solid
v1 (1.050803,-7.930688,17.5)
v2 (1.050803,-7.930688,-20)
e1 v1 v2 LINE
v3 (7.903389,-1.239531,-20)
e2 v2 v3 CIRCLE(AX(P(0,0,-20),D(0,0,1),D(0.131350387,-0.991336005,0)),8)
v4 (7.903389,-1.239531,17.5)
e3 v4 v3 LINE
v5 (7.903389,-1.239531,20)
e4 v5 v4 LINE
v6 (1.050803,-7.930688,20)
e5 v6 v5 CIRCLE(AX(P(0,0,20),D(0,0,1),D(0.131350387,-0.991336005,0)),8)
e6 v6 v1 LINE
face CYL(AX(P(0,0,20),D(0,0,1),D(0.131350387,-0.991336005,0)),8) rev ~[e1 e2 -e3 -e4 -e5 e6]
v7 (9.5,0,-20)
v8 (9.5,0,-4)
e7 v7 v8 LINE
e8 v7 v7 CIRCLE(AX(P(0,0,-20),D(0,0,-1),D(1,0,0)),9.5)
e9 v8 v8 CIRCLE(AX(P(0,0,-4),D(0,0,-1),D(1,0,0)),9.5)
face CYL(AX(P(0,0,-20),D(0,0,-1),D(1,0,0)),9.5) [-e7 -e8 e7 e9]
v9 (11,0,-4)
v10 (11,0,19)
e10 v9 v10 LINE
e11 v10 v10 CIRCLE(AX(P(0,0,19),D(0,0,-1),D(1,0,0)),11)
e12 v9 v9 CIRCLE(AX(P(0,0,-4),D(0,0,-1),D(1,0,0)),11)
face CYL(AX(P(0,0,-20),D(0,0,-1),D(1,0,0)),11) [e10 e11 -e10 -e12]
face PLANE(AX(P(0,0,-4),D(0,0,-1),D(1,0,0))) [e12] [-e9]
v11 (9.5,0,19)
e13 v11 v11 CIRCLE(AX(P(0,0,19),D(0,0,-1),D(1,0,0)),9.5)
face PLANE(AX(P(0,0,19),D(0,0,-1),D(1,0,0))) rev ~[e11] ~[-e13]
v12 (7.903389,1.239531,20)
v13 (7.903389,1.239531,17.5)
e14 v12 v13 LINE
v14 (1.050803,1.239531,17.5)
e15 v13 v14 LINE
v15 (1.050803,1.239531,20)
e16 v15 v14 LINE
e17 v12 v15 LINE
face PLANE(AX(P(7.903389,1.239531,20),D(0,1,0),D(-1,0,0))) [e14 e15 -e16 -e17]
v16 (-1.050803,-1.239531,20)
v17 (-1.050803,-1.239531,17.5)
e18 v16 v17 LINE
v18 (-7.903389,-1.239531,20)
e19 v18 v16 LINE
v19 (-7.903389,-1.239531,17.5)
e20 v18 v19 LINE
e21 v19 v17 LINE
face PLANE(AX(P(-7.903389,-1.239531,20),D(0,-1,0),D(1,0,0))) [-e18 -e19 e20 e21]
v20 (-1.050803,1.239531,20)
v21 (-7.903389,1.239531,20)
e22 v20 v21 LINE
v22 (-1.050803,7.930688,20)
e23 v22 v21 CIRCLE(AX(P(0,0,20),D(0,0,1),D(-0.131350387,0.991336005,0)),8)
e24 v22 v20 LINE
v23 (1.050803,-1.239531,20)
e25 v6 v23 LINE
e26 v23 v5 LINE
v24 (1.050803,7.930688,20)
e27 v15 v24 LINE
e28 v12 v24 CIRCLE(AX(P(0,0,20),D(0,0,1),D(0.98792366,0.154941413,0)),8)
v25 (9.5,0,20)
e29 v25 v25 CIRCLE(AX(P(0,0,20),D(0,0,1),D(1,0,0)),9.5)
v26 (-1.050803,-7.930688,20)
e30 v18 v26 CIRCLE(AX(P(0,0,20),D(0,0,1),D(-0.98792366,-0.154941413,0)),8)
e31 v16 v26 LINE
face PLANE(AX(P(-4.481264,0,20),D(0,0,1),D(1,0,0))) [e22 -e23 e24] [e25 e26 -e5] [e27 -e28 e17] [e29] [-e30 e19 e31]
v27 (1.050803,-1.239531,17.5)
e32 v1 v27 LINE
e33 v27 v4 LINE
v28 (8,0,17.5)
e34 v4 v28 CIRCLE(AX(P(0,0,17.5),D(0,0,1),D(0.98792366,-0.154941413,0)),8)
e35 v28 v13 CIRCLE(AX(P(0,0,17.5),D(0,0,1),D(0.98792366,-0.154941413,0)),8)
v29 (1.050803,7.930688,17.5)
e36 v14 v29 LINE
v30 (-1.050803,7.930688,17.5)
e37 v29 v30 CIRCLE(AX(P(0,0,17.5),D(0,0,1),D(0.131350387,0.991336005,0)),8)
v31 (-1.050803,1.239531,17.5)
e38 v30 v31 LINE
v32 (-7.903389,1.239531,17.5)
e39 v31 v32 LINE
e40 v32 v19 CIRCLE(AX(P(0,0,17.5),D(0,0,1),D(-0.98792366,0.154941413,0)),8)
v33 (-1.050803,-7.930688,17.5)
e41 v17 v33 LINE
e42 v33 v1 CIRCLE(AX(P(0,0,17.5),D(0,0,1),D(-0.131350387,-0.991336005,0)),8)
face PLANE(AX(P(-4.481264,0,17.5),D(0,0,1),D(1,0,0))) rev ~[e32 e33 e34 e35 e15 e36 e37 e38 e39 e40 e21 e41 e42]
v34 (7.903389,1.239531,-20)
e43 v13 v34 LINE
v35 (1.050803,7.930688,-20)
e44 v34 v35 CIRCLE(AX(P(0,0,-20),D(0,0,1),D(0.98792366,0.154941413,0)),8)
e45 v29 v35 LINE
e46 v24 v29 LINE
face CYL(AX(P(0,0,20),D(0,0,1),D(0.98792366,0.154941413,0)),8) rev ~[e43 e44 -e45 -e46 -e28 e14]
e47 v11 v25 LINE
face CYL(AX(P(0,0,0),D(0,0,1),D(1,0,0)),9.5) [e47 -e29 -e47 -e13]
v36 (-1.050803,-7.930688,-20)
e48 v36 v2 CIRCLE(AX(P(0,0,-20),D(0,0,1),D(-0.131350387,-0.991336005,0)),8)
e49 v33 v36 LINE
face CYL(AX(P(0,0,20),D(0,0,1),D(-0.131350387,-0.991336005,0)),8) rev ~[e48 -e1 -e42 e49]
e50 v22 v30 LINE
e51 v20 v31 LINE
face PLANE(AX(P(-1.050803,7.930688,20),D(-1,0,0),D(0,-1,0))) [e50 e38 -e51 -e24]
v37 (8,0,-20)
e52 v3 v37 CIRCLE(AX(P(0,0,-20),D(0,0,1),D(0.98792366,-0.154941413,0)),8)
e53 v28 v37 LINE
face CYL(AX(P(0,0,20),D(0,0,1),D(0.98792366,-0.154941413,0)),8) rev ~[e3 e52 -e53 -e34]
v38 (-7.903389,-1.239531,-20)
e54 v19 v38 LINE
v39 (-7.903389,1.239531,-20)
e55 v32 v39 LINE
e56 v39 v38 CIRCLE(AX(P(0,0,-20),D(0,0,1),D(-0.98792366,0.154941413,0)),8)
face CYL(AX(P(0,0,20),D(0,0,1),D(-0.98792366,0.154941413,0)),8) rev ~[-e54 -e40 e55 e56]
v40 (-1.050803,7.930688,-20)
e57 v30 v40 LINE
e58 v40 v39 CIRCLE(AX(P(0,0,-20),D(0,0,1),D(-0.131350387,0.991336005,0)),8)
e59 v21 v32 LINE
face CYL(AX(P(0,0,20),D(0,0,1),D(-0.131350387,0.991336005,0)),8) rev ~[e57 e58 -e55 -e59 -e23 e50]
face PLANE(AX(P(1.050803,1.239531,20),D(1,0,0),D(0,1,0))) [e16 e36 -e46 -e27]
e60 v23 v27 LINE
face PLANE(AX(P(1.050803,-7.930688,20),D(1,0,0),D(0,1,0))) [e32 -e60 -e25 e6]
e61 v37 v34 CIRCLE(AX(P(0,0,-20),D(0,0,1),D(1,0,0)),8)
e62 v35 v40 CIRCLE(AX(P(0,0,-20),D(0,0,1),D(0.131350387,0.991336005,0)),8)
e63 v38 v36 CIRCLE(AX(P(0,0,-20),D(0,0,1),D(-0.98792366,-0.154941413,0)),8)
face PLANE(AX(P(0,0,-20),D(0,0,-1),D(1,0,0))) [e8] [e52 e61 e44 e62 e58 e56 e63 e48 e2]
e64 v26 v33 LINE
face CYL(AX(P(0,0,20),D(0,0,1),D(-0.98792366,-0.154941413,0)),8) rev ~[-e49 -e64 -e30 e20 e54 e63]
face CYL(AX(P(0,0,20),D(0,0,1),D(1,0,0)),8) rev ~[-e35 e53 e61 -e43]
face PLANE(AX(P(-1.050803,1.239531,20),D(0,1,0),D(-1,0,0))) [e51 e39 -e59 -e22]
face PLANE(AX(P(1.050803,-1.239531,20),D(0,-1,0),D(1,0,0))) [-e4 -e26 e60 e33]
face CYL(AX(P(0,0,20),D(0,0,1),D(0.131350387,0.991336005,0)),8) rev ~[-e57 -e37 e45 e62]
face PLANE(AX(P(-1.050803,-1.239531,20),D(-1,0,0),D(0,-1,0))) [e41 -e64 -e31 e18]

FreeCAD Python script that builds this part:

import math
import FreeCAD as App
import Part
import Sketcher
from FreeCAD import Vector
Q = App.Units.Quantity

doc = App.newDocument("Part")
params = doc.addObject("Spreadsheet::Sheet", "Params")
for row, (alias, value) in enumerate([
    ("sketch1_diameter", "19 mm"),
    ("pad1_length", "40 mm"),
    ("sketch2_radius", "8 mm"),
    ("pocket1_length", "50 mm"),
    ("sketch3_radius", "8 mm"),
    ("pocket2_length", "50 mm"),
    ("sketch4_radius", "8 mm"),
    ("pad2_length", "2.5 mm"),
    ("sketch5_diameter", "22 mm"),
    ("sketch5_diameter2", "19 mm"),
    ("pad3_length", "39 mm"),
    ("sketch6_diameter", "22 mm"),
    ("sketch6_diameter2", "19 mm"),
    ("pocket3_length", "16 mm"),
], start=1):
    params.set(f"A{row}", alias)
    params.set(f"B{row}", "=" + value)
    params.setAlias(f"B{row}", alias)

body = doc.addObject("PartDesign::Body", "Body")

sketch1 = doc.addObject("Sketcher::SketchObject", "Sketch")
body.addObject(sketch1)
sketch1.AttachmentSupport = (doc.XY_Plane, [""])
sketch1.MapMode = "FlatFace"
sketch1.addGeometry(Part.Circle(Vector(0, 0, 0), Vector(0, 0, 1), 10), False)
sketch1.addConstraint([
    Sketcher.Constraint("Coincident", 0, 3, -1, 1),
    Sketcher.Constraint("Diameter", 0, Q("19 mm")),
])
sketch1.setExpression("Constraints[1]", "Params.sketch1_diameter")
pad1 = doc.addObject("PartDesign::Pad", "Pad")
body.addObject(pad1)
pad1.Profile = sketch1
pad1.setExpression("Length", "Params.pad1_length")
pad1.Midplane = True

sketch2 = doc.addObject("Sketcher::SketchObject", "Sketch001")
body.addObject(sketch2)
sketch2.AttachmentSupport = (doc.XY_Plane, [""])
sketch2.MapMode = "FlatFace"
sketch2.AttachmentOffset = App.Placement(Vector(0, 0, 20), App.Rotation())
sketch2.addGeometry([
    Part.LineSegment(Vector(-1, 1, 0), Vector(-1, 8, 0)),
    Part.ArcOfCircle(Part.Circle(Vector(0, 0, 0), Vector(0, 0, 1), 8), math.radians(98), math.radians(171)),
    Part.LineSegment(Vector(-8, 1, 0), Vector(-1, 1, 0)),
    Part.LineSegment(Vector(1, 1, 0), Vector(8, 1, 0)),
    Part.ArcOfCircle(Part.Circle(Vector(0, 0, 0), Vector(0, 0, 1), 8), math.radians(9), math.radians(82)),
    Part.LineSegment(Vector(1, 8, 0), Vector(1, 1, 0)),
    Part.ArcOfCircle(Part.Circle(Vector(0, 0, 0), Vector(0, 0, 1), 8), math.radians(-82), math.radians(-9)),
    Part.LineSegment(Vector(8, -1, 0), Vector(1, -1, 0)),
    Part.LineSegment(Vector(1, -1, 0), Vector(1, -8, 0)),
    Part.ArcOfCircle(Part.Circle(Vector(0, 0, 0), Vector(0, 0, 1), 8), math.radians(-171), math.radians(-98)),
    Part.LineSegment(Vector(-1, -8, 0), Vector(-1, -1, 0)),
    Part.LineSegment(Vector(-1, -1, 0), Vector(-8, -1, 0)),
], False)
sketch2.addConstraint([
    Sketcher.Constraint("Coincident", 0, 2, 1, 1),
    Sketcher.Constraint("Coincident", 1, 2, 2, 1),
    Sketcher.Constraint("Coincident", 2, 2, 0, 1),
    Sketcher.Constraint("Coincident", 3, 2, 4, 1),
    Sketcher.Constraint("Coincident", 4, 2, 5, 1),
    Sketcher.Constraint("Coincident", 5, 2, 3, 1),
    Sketcher.Constraint("Coincident", 6, 2, 7, 1),
    Sketcher.Constraint("Coincident", 7, 2, 8, 1),
    Sketcher.Constraint("Coincident", 8, 2, 6, 1),
    Sketcher.Constraint("Coincident", 9, 2, 10, 1),
    Sketcher.Constraint("Coincident", 10, 2, 11, 1),
    Sketcher.Constraint("Coincident", 11, 2, 9, 1),
    Sketcher.Constraint("Vertical", 0),
    Sketcher.Constraint("Horizontal", 2),
    Sketcher.Constraint("Horizontal", 3),
    Sketcher.Constraint("Vertical", 5),
    Sketcher.Constraint("Horizontal", 7),
    Sketcher.Constraint("Vertical", 8),
    Sketcher.Constraint("Vertical", 10),
    Sketcher.Constraint("Horizontal", 11),
    Sketcher.Constraint("Coincident", 1, 3, -1, 1),
    Sketcher.Constraint("Coincident", 4, 3, -1, 1),
    Sketcher.Constraint("Coincident", 6, 3, -1, 1),
    Sketcher.Constraint("Coincident", 9, 3, -1, 1),
    Sketcher.Constraint("Equal", 1, 4),
    Sketcher.Constraint("Equal", 4, 6),
    Sketcher.Constraint("Equal", 6, 9),
    Sketcher.Constraint("Symmetric", 2, 2, 7, 2, -1, 1),
    Sketcher.Constraint("Symmetric", 5, 2, 10, 2, -1, 1),
    Sketcher.Constraint("Symmetric", 2, 2, 5, 2, -2),
    Sketcher.Constraint("Radius", 1, Q("8 mm")),
    Sketcher.Constraint("DistanceX", 2, 1, 2, 2, Q("6.852586 mm")),
    Sketcher.Constraint("DistanceY", 0, 1, 0, 2, Q("6.691157 mm")),
])
sketch2.setExpression("Constraints[30]", "Params.sketch2_radius")
pocket1 = doc.addObject("PartDesign::Pocket", "Pocket")
body.addObject(pocket1)
pocket1.Profile = sketch2
pocket1.setExpression("Length", "Params.pocket1_length")

sketch3 = doc.addObject("Sketcher::SketchObject", "Sketch002")
body.addObject(sketch3)
sketch3.AttachmentSupport = (doc.XY_Plane, [""])
sketch3.MapMode = "FlatFace"
sketch3.AttachmentOffset = App.Placement(Vector(0, 0, 20), App.Rotation())
sketch3.addGeometry([
    Part.ArcOfCircle(Part.Circle(Vector(0, 0, 0), Vector(0, 0, 1), 8), math.radians(-97.55), math.radians(-82.45)),
    Part.ArcOfCircle(Part.Circle(Vector(0, 0, 0), Vector(0, 0, 1), 8), math.radians(-82), math.radians(-9)),
    Part.ArcOfCircle(Part.Circle(Vector(0, 0, 0), Vector(0, 0, 1), 8), math.radians(-8.91), math.radians(0)),
    Part.ArcOfCircle(Part.Circle(Vector(0, 0, 0), Vector(0, 0, 1), 8), math.radians(0), math.radians(8.91)),
    Part.ArcOfCircle(Part.Circle(Vector(0, 0, 0), Vector(0, 0, 1), 8), math.radians(9), math.radians(82)),
    Part.ArcOfCircle(Part.Circle(Vector(0, 0, 0), Vector(0, 0, 1), 8), math.radians(82.45), math.radians(97.55)),
    Part.ArcOfCircle(Part.Circle(Vector(0, 0, 0), Vector(0, 0, 1), 8), math.radians(98), math.radians(171)),
    Part.ArcOfCircle(Part.Circle(Vector(0, 0, 0), Vector(0, 0, 1), 8), math.radians(171.09), math.radians(188.91)),
    Part.ArcOfCircle(Part.Circle(Vector(0, 0, 0), Vector(0, 0, 1), 8), math.radians(-171), math.radians(-98)),
], False)
sketch3.addConstraint([
    Sketcher.Constraint("Tangent", 0, 2, 1, 1),
    Sketcher.Constraint("Tangent", 1, 2, 2, 1),
    Sketcher.Constraint("Tangent", 2, 2, 3, 1),
    Sketcher.Constraint("Tangent", 3, 2, 4, 1),
    Sketcher.Constraint("Tangent", 4, 2, 5, 1),
    Sketcher.Constraint("Tangent", 5, 2, 6, 1),
    Sketcher.Constraint("Tangent", 6, 2, 7, 1),
    Sketcher.Constraint("Tangent", 7, 2, 8, 1),
    Sketcher.Constraint("Tangent", 8, 2, 0, 1),
    Sketcher.Constraint("Coincident", 0, 3, -1, 1),
    Sketcher.Constraint("Coincident", 2, 3, -1, 1),
    Sketcher.Constraint("Coincident", 4, 3, -1, 1),
    Sketcher.Constraint("Coincident", 6, 3, -1, 1),
    Sketcher.Constraint("PointOnObject", 2, 2, -1),
    Sketcher.Constraint("Horizontal", 4, 2, 5, 2),
    Sketcher.Constraint("Horizontal", 3, 2, 6, 2),
    Sketcher.Constraint("Horizontal", 1, 2, 7, 2),
    Sketcher.Constraint("Horizontal", 0, 2, 8, 2),
    Sketcher.Constraint("Vertical", 1, 2, 3, 2),
    Sketcher.Constraint("Vertical", 0, 2, 4, 2),
    Sketcher.Constraint("Radius", 0, Q("8 mm")),
    Sketcher.Constraint("DistanceY", 0, 2, -1, 1, Q("7.930688 mm")),
    Sketcher.Constraint("DistanceX", -1, 1, 1, 2, Q("7.903389 mm")),
])
sketch3.setExpression("Constraints[20]", "Params.sketch3_radius")
pocket2 = doc.addObject("PartDesign::Pocket", "Pocket001")
body.addObject(pocket2)
pocket2.Profile = sketch3
pocket2.setExpression("Length", "Params.pocket2_length")

sketch4 = doc.addObject("Sketcher::SketchObject", "Sketch003")
body.addObject(sketch4)
sketch4.AttachmentSupport = (doc.XY_Plane, [""])
sketch4.MapMode = "FlatFace"
sketch4.AttachmentOffset = App.Placement(Vector(0, 0, 20), App.Rotation())
sketch4.addGeometry([
    Part.LineSegment(Vector(-1.1, 1.2, 0), Vector(-7.9, 1.2, 0)),
    Part.ArcOfCircle(Part.Circle(Vector(0, 0, 0), Vector(0, 0, 1), 8), math.radians(171.09), math.radians(188.91)),
    Part.LineSegment(Vector(-7.9, -1.2, 0), Vector(-1.1, -1.2, 0)),
    Part.LineSegment(Vector(-1.1, -1.2, 0), Vector(-1.1, -7.9, 0)),
    Part.ArcOfCircle(Part.Circle(Vector(0, 0, 0), Vector(0, 0, 1), 8), math.radians(-97.55), math.radians(-82.45)),
    Part.LineSegment(Vector(1.1, -7.9, 0), Vector(1.1, -1.2, 0)),
    Part.LineSegment(Vector(1.1, -1.2, 0), Vector(7.9, -1.2, 0)),
    Part.ArcOfCircle(Part.Circle(Vector(0, 0, 0), Vector(0, 0, 1), 8), math.radians(-8.91), math.radians(8.91)),
    Part.LineSegment(Vector(7.9, 1.2, 0), Vector(1.1, 1.2, 0)),
    Part.LineSegment(Vector(1.1, 1.2, 0), Vector(1.1, 7.9, 0)),
    Part.ArcOfCircle(Part.Circle(Vector(0, 0, 0), Vector(0, 0, 1), 8), math.radians(82.45), math.radians(97.55)),
    Part.LineSegment(Vector(-1.1, 7.9, 0), Vector(-1.1, 1.2, 0)),
], False)
sketch4.addConstraint([
    Sketcher.Constraint("Coincident", 0, 2, 1, 1),
    Sketcher.Constraint("Coincident", 1, 2, 2, 1),
    Sketcher.Constraint("Coincident", 2, 2, 3, 1),
    Sketcher.Constraint("Coincident", 3, 2, 4, 1),
    Sketcher.Constraint("Coincident", 4, 2, 5, 1),
    Sketcher.Constraint("Coincident", 5, 2, 6, 1),
    Sketcher.Constraint("Coincident", 6, 2, 7, 1),
    Sketcher.Constraint("Coincident", 7, 2, 8, 1),
    Sketcher.Constraint("Coincident", 8, 2, 9, 1),
    Sketcher.Constraint("Coincident", 9, 2, 10, 1),
    Sketcher.Constraint("Coincident", 10, 2, 11, 1),
    Sketcher.Constraint("Coincident", 11, 2, 0, 1),
    Sketcher.Constraint("Horizontal", 0),
    Sketcher.Constraint("Horizontal", 2),
    Sketcher.Constraint("Vertical", 3),
    Sketcher.Constraint("Vertical", 5),
    Sketcher.Constraint("Horizontal", 6),
    Sketcher.Constraint("Horizontal", 8),
    Sketcher.Constraint("Vertical", 9),
    Sketcher.Constraint("Vertical", 11),
    Sketcher.Constraint("Coincident", 1, 3, -1, 1),
    Sketcher.Constraint("Coincident", 4, 3, -1, 1),
    Sketcher.Constraint("Coincident", 7, 3, -1, 1),
    Sketcher.Constraint("Coincident", 10, 3, -1, 1),
    Sketcher.Constraint("Equal", 1, 4),
    Sketcher.Constraint("Equal", 4, 7),
    Sketcher.Constraint("Equal", 7, 10),
    Sketcher.Constraint("Symmetric", 2, 2, 8, 2, -1, 1),
    Sketcher.Constraint("Symmetric", 5, 2, 11, 2, -1, 1),
    Sketcher.Constraint("Symmetric", 2, 2, 5, 2, -2),
    Sketcher.Constraint("Radius", 1, Q("8 mm")),
    Sketcher.Constraint("DistanceX", 0, 2, 0, 1, Q("6.852586 mm")),
    Sketcher.Constraint("DistanceY", 3, 2, 3, 1, Q("6.691157 mm")),
])
sketch4.setExpression("Constraints[30]", "Params.sketch4_radius")
pad2 = doc.addObject("PartDesign::Pad", "Pad001")
body.addObject(pad2)
pad2.Profile = sketch4
pad2.setExpression("Length", "Params.pad2_length")
pad2.Reversed = True

sketch5 = doc.addObject("Sketcher::SketchObject", "Sketch004")
body.addObject(sketch5)
sketch5.AttachmentSupport = (doc.XY_Plane, [""])
sketch5.MapMode = "FlatFace"
sketch5.AttachmentOffset = App.Placement(Vector(0, 0, -20), App.Rotation())
sketch5.addGeometry([
    Part.Circle(Vector(0, 0, 0), Vector(0, 0, 1), 11),
    Part.Circle(Vector(0, 0, 0), Vector(0, 0, 1), 10),
], False)
sketch5.addConstraint([
    Sketcher.Constraint("Coincident", 0, 3, -1, 1),
    Sketcher.Constraint("Coincident", 1, 3, -1, 1),
    Sketcher.Constraint("Diameter", 0, Q("22 mm")),
    Sketcher.Constraint("Diameter", 1, Q("19 mm")),
])
sketch5.setExpression("Constraints[2]", "Params.sketch5_diameter")
sketch5.setExpression("Constraints[3]", "Params.sketch5_diameter2")
pad3 = doc.addObject("PartDesign::Pad", "Pad002")
body.addObject(pad3)
pad3.Profile = sketch5
pad3.setExpression("Length", "Params.pad3_length")

sketch6 = doc.addObject("Sketcher::SketchObject", "Sketch005")
body.addObject(sketch6)
sketch6.AttachmentSupport = (doc.XY_Plane, [""])
sketch6.MapMode = "FlatFace"
sketch6.AttachmentOffset = App.Placement(Vector(0, 0, -20), App.Rotation())
sketch6.addGeometry([
    Part.Circle(Vector(0, 0, 0), Vector(0, 0, 1), 11),
    Part.Circle(Vector(0, 0, 0), Vector(0, 0, 1), 10),
], False)
sketch6.addConstraint([
    Sketcher.Constraint("Coincident", 0, 3, -1, 1),
    Sketcher.Constraint("Coincident", 1, 3, -1, 1),
    Sketcher.Constraint("Diameter", 0, Q("22 mm")),
    Sketcher.Constraint("Diameter", 1, Q("19 mm")),
])
sketch6.setExpression("Constraints[2]", "Params.sketch6_diameter")
sketch6.setExpression("Constraints[3]", "Params.sketch6_diameter2")
pocket3 = doc.addObject("PartDesign::Pocket", "Pocket002")
body.addObject(pocket3)
pocket3.Profile = sketch6
pocket3.setExpression("Length", "Params.pocket3_length")
pocket3.Reversed = True

doc.recompute()
